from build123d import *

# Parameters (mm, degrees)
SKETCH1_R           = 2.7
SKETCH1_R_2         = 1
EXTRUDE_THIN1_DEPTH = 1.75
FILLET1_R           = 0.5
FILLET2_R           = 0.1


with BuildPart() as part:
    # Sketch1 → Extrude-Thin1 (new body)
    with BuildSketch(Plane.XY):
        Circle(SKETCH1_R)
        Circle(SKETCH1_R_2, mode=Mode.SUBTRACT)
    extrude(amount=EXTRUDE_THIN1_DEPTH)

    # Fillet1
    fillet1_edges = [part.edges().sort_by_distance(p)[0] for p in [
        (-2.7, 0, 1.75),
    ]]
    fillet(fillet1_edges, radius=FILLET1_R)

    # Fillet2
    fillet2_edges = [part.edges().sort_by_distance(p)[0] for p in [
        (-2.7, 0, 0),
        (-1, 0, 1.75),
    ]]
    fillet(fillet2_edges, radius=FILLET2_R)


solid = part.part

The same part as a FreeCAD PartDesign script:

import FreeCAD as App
import Part
import Sketcher
from FreeCAD import Vector
Q = App.Units.Quantity


def edges_at(feature, points):
    """Names of the edges that pass closest to the given points."""
    edges = feature.Shape.Edges
    near = lambda p: min(range(len(edges)), key=lambda i: edges[i].distToShape(Part.Vertex(*p))[0])
    return sorted({f"Edge{near(p) + 1}" for p in points})

doc = App.newDocument("Part")
params = doc.addObject("Spreadsheet::Sheet", "Params")
for row, (alias, value) in enumerate([
    ("sketch1_diameter", "2 mm"),
    ("sketch1_diameter2", "5.4 mm"),
    ("pad1_length", "1.75 mm"),
    ("fillet_radius", "0.5 mm"),
    ("fillet2_radius", "0.1 mm"),
], start=1):
    params.set(f"A{row}", alias)
    params.set(f"B{row}", "=" + value)
    params.setAlias(f"B{row}", alias)

body = doc.addObject("PartDesign::Body", "Body")

# Sketch on XY plane
sketch1 = doc.addObject("Sketcher::SketchObject", "Sketch")
body.addObject(sketch1)
sketch1.AttachmentSupport = (doc.XY_Plane, [""])
sketch1.MapMode = "FlatFace"
sketch1.addGeometry([
    Part.Circle(Vector(0, 0, 0), Vector(0, 0, 1), 2.7),
    Part.Circle(Vector(0, 0, 0), Vector(0, 0, 1), 1),
], False)
sketch1.addConstraint([
    Sketcher.Constraint("Coincident", 0, 3, -1, 1),
    Sketcher.Constraint("Coincident", 1, 3, -1, 1),
    Sketcher.Constraint("Diameter", 1, Q("2 mm")),
    Sketcher.Constraint("Diameter", 0, Q("5.4 mm")),
])
sketch1.setExpression("Constraints[2]", "Params.sketch1_diameter")
sketch1.setExpression("Constraints[3]", "Params.sketch1_diameter2")
pad1 = doc.addObject("PartDesign::Pad", "Pad")
body.addObject(pad1)
pad1.Profile = sketch1
pad1.setExpression("Length", "Params.pad1_length")
doc.recompute()

fillet = doc.addObject("PartDesign::Fillet", "Fillet")
body.addObject(fillet)
fillet.Base = (pad1, edges_at(pad1, [(-2.7, 0, 1.75)]))
fillet.setExpression("Radius", "Params.fillet_radius")
doc.recompute()

fillet2 = doc.addObject("PartDesign::Fillet", "Fillet001")
body.addObject(fillet2)
fillet2.Base = (fillet, edges_at(fillet, [(-2.7, 0, 0), (-1, 0, 1.75)]))
fillet2.setExpression("Radius", "Params.fillet2_radius")

doc.recompute()
